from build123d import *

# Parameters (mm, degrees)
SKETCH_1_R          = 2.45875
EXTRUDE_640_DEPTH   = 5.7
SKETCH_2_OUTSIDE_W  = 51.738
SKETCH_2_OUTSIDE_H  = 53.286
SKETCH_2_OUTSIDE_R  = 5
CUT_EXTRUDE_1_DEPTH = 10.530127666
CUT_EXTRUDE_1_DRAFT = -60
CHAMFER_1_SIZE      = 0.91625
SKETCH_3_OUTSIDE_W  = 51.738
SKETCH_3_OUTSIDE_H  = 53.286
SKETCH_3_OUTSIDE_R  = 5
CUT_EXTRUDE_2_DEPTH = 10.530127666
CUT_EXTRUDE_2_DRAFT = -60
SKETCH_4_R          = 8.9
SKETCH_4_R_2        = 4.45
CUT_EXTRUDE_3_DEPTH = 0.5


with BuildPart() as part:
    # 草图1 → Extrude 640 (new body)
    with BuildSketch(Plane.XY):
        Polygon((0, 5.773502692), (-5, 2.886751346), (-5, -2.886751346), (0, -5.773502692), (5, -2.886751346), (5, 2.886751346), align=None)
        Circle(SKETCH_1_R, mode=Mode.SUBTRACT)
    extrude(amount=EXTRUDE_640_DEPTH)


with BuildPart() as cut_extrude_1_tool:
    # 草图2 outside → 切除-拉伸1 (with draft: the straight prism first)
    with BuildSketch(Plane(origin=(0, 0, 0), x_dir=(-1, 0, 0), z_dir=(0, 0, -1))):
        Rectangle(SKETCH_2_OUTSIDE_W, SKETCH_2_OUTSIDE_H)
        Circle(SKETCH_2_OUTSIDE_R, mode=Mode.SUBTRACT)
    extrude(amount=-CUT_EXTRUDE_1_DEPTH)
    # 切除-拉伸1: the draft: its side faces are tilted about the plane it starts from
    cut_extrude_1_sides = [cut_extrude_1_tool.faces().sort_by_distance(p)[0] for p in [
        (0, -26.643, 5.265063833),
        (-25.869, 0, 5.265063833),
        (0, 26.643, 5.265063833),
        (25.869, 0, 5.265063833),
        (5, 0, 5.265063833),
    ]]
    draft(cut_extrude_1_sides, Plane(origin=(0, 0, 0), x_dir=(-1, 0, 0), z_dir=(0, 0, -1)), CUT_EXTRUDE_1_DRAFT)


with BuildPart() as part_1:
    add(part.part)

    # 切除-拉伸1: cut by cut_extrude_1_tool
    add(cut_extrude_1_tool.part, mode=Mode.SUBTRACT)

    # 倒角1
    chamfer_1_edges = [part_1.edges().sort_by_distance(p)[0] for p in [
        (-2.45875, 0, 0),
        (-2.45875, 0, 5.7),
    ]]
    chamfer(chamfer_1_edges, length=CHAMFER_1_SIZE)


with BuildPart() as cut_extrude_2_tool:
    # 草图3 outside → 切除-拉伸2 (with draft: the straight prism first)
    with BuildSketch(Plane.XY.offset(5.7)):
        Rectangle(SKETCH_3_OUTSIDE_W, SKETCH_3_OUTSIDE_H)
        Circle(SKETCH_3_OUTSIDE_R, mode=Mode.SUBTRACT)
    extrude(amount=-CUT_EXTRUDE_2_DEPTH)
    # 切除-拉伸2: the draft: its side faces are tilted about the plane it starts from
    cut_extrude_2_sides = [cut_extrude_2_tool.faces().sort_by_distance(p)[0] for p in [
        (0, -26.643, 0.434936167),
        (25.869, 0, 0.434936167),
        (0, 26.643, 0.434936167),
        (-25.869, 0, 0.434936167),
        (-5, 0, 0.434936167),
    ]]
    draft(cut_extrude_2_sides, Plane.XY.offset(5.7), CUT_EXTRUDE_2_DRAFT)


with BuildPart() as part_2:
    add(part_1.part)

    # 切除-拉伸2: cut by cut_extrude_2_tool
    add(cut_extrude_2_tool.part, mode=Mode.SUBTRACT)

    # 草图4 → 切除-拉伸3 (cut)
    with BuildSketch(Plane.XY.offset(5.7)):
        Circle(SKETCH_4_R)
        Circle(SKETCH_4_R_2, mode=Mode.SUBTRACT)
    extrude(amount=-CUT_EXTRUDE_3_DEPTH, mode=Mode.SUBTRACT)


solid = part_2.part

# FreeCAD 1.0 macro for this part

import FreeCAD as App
import Part
import Sketcher
Q = App.Units.Quantity


def edges_at(feature, points):
    """Names of the edges that pass closest to the given points."""
    edges = feature.Shape.Edges
    near = lambda p: min(range(len(edges)), key=lambda i: edges[i].distToShape(Part.Vertex(*p))[0])
    return sorted({f"Edge{near(p) + 1}" for p in points})


def faces_at(feature, points):
    """Names of the faces that lie closest to the given points."""
    faces = feature.Shape.Faces
    near = lambda p: min(range(len(faces)), key=lambda i: faces[i].distToShape(Part.Vertex(*p))[0])
    return sorted({f"Face{near(p) + 1}" for p in points})


def add_polygon(sketch, points):
    """Adds a closed chain of lines whose ends are joined by coincident constraints."""
    first, n = sketch.GeometryCount, len(points)
    for a, b in zip(points, points[1:] + points[:1]):
        sketch.addGeometry(Part.LineSegment(App.Vector(*a, 0), App.Vector(*b, 0)), False)
    for i in range(n):
        sketch.addConstraint(Sketcher.Constraint("Coincident", first + i, 2, first + (i + 1) % n, 1))

doc = App.newDocument("Part")
body = doc.addObject("PartDesign::Body", "Body")

# Sketch on XY plane
sketch1 = body.newObject("Sketcher::SketchObject", "Sketch")
sketch1.AttachmentSupport = (doc.getObject("XY_Plane"), [""])
sketch1.MapMode = "FlatFace"
add_polygon(sketch1, [(0, 5.773503), (-5, 2.886751), (-5, -2.886751), (0, -5.773503), (5, -2.886751), (5, 2.886751)])  # lines 0-5
sketch1.addGeometry(Part.Circle(App.Vector(0, 0, 0), App.Vector(0, 0, 1), 2.45875), False)  # 6
sketch1.addConstraint(Sketcher.Constraint("Vertical", 1))
sketch1.addConstraint(Sketcher.Constraint("Vertical", 4))
sketch1.addConstraint(Sketcher.Constraint("Coincident", 6, 3, -1, 1))
sketch1.addConstraint(Sketcher.Constraint("Symmetric", 0, 2, 3, 2, -1, 1))
sketch1.addConstraint(Sketcher.Constraint("Symmetric", 2, 2, 5, 2, -1, 1))
sketch1.addConstraint(Sketcher.Constraint("PointOnObject", 2, 2, -2))
sketch1.addConstraint(Sketcher.Constraint("Parallel", 2, 5))
sketch1.addConstraint(Sketcher.Constraint("Horizontal", 1, 2, 3, 2))
sketch1.addConstraint(Sketcher.Constraint("Angle", 0, Q("-150 deg")))
sketch1.addConstraint(Sketcher.Constraint("DistanceX", 0, 2, -1, 1, Q("5 mm")))
sketch1.addConstraint(Sketcher.Constraint("Diameter", 6, Q("4.9175 mm")))
sketch1.addConstraint(Sketcher.Constraint("DistanceY", 1, 2, 1, 1, Q("5.773503 mm")))
pad1 = body.newObject("PartDesign::Pad", "Pad")
pad1.Profile = sketch1
pad1.Length = 5.7
body2 = doc.addObject("PartDesign::Body", "Body001")

# Sketch on XY plane
sketch2 = body2.newObject("Sketcher::SketchObject", "Sketch001")
sketch2.AttachmentSupport = (doc.getObject("XY_Plane001"), [""])
sketch2.MapMode = "FlatFace"
add_polygon(sketch2, [(25.869, 26.643), (25.869, -26.643), (-25.869, -26.643), (-25.869, 26.643)])  # lines 0-3
sketch2.addGeometry(Part.Circle(App.Vector(0, 0, 0), App.Vector(0, 0, 1), 5), False)  # 4
sketch2.addConstraint(Sketcher.Constraint("Vertical", 0))
sketch2.addConstraint(Sketcher.Constraint("Horizontal", 1))
sketch2.addConstraint(Sketcher.Constraint("Vertical", 2))
sketch2.addConstraint(Sketcher.Constraint("Horizontal", 3))
sketch2.addConstraint(Sketcher.Constraint("Coincident", 4, 3, -1, 1))
sketch2.addConstraint(Sketcher.Constraint("Symmetric", 0, 2, 2, 2, -1, 1))
sketch2.addConstraint(Sketcher.Constraint("Diameter", 4, Q("10 mm")))
sketch2.addConstraint(Sketcher.Constraint("DistanceX", 1, 2, 1, 1, Q("51.738 mm")))
sketch2.addConstraint(Sketcher.Constraint("DistanceY", 0, 2, 0, 1, Q("53.286 mm")))
pad2 = body2.newObject("PartDesign::Pad", "Pad001")
pad2.Profile = sketch2
pad2.Length = 10.530128
doc.recompute()

draft = body2.newObject("PartDesign::Draft", "Draft")
draft.Base = (pad2, faces_at(pad2, [
    (0, -26.643, 5.265),
    (-25.869, 0, 5.265),
    (0, 26.643, 5.265),
    (25.869, 0, 5.265),
    (5, 0, 5.265),
]))
draft.NeutralPlane = (doc.getObject("XY_Plane001"), [""])
draft.Angle = 60
draft.Reversed = False
doc.recompute()

boolean = body.newObject("PartDesign::Boolean", "Boolean")
boolean.Type = "Cut"
boolean.addObjects([body2])
doc.recompute()

chamfer = body.newObject("PartDesign::Chamfer", "Chamfer")
chamfer.Base = (boolean, edges_at(boolean, [(-2.459, 0, 0), (-2.459, 0, 5.7)]))
chamfer.Size = 0.91625
body3 = doc.addObject("PartDesign::Body", "Body002")

# Sketch on XY plane
sketch3 = body3.newObject("Sketcher::SketchObject", "Sketch002")
sketch3.AttachmentSupport = (doc.getObject("XY_Plane002"), [""])
sketch3.MapMode = "FlatFace"
sketch3.AttachmentOffset = App.Placement(App.Vector(0, 0, 5.7), App.Rotation())
add_polygon(sketch3, [(-25.869, 26.643), (-25.869, -26.643), (25.869, -26.643), (25.869, 26.643)])  # lines 0-3
sketch3.addGeometry(Part.Circle(App.Vector(0, 0, 0), App.Vector(0, 0, 1), 5), False)  # 4
sketch3.addConstraint(Sketcher.Constraint("Vertical", 0))
sketch3.addConstraint(Sketcher.Constraint("Horizontal", 1))
sketch3.addConstraint(Sketcher.Constraint("Vertical", 2))
sketch3.addConstraint(Sketcher.Constraint("Horizontal", 3))
sketch3.addConstraint(Sketcher.Constraint("Coincident", 4, 3, -1, 1))
sketch3.addConstraint(Sketcher.Constraint("Symmetric", 0, 2, 2, 2, -1, 1))
sketch3.addConstraint(Sketcher.Constraint("Diameter", 4, Q("10 mm")))
sketch3.addConstraint(Sketcher.Constraint("DistanceX", 1, 1, 1, 2, Q("51.738 mm")))
sketch3.addConstraint(Sketcher.Constraint("DistanceY", 0, 2, 0, 1, Q("53.286 mm")))
pad3 = body3.newObject("PartDesign::Pad", "Pad002")
pad3.Profile = sketch3
pad3.Length = 10.530128
pad3.Reversed = True
doc.recompute()

datumplane = body3.newObject("PartDesign::Plane", "DatumPlane")
datumplane.AttachmentSupport = (doc.getObject("XY_Plane002"), [""])
datumplane.MapMode = "FlatFace"
datumplane.AttachmentOffset = App.Placement(App.Vector(0, 0, 5.7), App.Rotation())
draft2 = body3.newObject("PartDesign::Draft", "Draft001")
draft2.Base = (pad3, faces_at(pad3, [
    (0, -26.643, 0.435),
    (25.869, 0, 0.435),
    (0, 26.643, 0.435),
    (-25.869, 0, 0.435),
    (-5, 0, 0.435),
]))
draft2.NeutralPlane = (datumplane, [""])
draft2.Angle = 60
draft2.Reversed = True
doc.recompute()

boolean2 = body.newObject("PartDesign::Boolean", "Boolean001")
boolean2.Type = "Cut"
boolean2.addObjects([body3])

# Sketch on XY plane
sketch4 = body.newObject("Sketcher::SketchObject", "Sketch003")
sketch4.AttachmentSupport = (doc.getObject("XY_Plane"), [""])
sketch4.MapMode = "FlatFace"
sketch4.AttachmentOffset = App.Placement(App.Vector(0, 0, 5.7), App.Rotation())
sketch4.addGeometry(Part.Circle(App.Vector(0, 0, 0), App.Vector(0, 0, 1), 8.9), False)
sketch4.addGeometry(Part.Circle(App.Vector(0, 0, 0), App.Vector(0, 0, 1), 4.45), False)
sketch4.addConstraint(Sketcher.Constraint("Coincident", 0, 3, -1, 1))
sketch4.addConstraint(Sketcher.Constraint("Coincident", 1, 3, -1, 1))
sketch4.addConstraint(Sketcher.Constraint("Diameter", 0, Q("17.8 mm")))
sketch4.addConstraint(Sketcher.Constraint("Diameter", 1, Q("8.9 mm")))
pocket1 = body.newObject("PartDesign::Pocket", "Pocket")
pocket1.Profile = sketch4
pocket1.Length = 0.5

doc.recompute()
